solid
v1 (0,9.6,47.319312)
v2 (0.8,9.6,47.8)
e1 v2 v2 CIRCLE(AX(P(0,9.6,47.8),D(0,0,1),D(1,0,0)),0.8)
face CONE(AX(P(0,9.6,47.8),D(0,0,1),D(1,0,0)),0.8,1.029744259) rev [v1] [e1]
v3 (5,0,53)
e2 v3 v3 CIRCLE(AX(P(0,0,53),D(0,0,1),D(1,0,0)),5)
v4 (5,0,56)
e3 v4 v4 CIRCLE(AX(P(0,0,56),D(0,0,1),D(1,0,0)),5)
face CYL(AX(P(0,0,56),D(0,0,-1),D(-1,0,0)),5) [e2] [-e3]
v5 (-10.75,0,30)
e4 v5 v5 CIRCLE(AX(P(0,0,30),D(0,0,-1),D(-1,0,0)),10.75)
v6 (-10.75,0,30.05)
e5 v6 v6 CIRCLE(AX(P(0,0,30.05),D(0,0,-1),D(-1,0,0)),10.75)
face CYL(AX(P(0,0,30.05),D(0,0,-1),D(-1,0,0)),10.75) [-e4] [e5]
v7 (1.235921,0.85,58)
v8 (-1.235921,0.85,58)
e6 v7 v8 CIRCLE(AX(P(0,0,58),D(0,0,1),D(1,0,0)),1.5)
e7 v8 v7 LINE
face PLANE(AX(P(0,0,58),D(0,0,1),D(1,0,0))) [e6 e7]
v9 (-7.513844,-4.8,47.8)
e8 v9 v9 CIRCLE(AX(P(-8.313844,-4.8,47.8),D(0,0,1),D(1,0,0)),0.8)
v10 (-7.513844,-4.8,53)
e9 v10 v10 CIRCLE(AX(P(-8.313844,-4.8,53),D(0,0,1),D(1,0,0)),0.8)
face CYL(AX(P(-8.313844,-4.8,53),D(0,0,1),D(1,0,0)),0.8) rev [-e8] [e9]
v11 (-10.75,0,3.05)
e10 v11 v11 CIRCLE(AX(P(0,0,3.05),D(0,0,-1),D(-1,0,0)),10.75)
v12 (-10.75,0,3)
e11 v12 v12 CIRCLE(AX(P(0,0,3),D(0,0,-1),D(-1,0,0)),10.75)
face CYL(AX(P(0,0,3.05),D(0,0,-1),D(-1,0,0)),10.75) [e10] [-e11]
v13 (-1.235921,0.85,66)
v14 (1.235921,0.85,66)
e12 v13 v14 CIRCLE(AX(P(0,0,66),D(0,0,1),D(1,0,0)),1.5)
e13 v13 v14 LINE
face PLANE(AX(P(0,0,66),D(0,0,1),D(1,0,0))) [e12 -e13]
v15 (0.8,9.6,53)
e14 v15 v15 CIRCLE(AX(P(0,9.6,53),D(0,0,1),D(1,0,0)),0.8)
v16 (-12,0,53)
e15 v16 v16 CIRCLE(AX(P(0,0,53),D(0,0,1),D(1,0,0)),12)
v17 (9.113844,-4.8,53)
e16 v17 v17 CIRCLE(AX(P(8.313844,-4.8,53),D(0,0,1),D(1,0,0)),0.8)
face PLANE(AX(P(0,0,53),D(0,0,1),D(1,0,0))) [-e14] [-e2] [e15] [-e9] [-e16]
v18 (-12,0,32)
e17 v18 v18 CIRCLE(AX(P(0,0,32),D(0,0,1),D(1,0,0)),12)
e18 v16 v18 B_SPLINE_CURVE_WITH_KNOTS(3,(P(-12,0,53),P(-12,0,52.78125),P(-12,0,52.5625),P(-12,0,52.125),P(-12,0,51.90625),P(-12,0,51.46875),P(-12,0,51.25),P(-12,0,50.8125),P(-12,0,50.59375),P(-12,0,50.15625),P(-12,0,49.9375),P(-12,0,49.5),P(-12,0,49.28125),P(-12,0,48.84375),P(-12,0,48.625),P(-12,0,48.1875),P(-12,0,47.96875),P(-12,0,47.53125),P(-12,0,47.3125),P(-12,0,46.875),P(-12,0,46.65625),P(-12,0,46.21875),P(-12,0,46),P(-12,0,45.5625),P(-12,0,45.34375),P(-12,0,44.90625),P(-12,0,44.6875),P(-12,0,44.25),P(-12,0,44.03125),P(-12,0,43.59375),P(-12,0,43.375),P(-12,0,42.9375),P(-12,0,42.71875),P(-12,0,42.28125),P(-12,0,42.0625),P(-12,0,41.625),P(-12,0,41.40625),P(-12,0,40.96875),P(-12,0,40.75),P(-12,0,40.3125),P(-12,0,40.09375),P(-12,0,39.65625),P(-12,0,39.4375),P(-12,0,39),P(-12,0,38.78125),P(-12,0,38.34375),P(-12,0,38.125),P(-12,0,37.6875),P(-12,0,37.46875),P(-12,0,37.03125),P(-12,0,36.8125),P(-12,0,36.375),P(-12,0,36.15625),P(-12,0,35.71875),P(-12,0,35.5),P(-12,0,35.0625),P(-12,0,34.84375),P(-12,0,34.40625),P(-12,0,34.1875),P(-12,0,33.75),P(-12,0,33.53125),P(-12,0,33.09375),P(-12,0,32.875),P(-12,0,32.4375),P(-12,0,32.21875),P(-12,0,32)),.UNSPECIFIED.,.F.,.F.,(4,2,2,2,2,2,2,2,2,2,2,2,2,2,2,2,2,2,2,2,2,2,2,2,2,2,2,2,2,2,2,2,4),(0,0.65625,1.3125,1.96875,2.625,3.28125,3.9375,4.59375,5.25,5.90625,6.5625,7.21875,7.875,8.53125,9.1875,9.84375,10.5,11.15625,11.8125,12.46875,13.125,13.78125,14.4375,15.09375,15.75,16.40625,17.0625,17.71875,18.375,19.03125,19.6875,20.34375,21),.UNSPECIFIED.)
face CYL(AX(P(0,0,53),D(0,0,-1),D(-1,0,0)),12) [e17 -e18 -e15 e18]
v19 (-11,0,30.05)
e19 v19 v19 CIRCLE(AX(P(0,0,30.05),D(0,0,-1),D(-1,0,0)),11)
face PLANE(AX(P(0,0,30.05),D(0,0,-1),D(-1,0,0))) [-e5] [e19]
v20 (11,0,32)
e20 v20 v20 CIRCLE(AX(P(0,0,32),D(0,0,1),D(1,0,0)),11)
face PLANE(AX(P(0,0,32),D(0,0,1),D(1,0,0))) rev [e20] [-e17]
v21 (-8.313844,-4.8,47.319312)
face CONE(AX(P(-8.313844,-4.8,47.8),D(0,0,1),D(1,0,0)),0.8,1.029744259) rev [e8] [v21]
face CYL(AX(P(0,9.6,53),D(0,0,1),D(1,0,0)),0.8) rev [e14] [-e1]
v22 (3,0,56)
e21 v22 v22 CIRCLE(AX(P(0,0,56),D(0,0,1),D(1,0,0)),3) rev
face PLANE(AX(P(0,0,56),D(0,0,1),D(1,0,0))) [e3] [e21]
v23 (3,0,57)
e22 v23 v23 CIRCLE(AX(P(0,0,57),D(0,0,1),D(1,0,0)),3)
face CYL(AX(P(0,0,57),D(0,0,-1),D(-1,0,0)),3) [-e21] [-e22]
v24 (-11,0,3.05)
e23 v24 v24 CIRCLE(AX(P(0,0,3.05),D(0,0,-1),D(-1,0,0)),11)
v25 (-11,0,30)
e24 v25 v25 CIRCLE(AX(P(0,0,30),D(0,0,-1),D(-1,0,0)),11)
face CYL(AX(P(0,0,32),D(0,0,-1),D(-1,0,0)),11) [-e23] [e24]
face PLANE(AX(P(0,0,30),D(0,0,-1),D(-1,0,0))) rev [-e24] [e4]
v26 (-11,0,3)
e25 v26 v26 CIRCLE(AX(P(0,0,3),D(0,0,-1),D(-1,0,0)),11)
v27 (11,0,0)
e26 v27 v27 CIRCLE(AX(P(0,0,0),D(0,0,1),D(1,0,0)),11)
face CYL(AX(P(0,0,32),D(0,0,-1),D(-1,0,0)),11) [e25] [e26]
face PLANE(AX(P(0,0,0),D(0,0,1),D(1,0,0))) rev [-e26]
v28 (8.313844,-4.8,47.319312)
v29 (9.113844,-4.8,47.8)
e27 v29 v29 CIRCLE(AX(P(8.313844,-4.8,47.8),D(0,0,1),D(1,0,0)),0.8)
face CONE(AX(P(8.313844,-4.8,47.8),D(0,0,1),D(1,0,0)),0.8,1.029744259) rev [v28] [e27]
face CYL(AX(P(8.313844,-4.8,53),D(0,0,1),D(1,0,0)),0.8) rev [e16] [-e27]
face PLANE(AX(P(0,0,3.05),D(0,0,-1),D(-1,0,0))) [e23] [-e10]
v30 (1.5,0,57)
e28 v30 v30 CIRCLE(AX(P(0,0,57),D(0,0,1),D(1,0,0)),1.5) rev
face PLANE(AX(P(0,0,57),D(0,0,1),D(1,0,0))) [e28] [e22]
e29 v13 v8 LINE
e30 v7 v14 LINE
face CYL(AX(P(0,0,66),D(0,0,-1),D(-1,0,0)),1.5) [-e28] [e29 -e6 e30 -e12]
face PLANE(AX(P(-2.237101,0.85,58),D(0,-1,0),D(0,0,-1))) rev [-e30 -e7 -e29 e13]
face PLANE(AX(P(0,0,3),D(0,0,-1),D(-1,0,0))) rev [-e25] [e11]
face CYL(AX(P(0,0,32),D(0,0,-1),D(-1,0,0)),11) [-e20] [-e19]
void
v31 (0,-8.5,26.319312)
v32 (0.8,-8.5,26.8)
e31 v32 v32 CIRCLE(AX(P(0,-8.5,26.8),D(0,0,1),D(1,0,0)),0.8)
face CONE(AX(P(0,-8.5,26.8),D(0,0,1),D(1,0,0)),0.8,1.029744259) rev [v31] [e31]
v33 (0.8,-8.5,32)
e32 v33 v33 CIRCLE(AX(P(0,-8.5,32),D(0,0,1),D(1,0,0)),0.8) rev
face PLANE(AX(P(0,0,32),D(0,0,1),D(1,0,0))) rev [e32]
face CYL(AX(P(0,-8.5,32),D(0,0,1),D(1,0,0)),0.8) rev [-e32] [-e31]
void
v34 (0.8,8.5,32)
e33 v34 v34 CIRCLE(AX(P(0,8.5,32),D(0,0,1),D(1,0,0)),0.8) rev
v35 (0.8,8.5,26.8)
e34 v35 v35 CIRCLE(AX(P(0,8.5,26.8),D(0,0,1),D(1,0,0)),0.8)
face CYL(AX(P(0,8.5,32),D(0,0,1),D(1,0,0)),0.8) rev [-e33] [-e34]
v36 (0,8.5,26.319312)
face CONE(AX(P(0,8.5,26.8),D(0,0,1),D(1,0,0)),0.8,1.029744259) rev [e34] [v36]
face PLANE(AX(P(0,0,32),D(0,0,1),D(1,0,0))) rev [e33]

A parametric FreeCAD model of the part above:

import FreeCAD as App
import Part
import Sketcher

V = App.Vector
Q = App.Units.Quantity

doc = App.newDocument("Part")
body = doc.addObject("PartDesign::Body", "Body")

# Sketch on XY plane
sketch1 = body.newObject("Sketcher::SketchObject", "Sketch")
sketch1.AttachmentSupport = (doc.getObject("XY_Plane"), [""])
sketch1.MapMode = "FlatFace"
sketch1.addGeometry(Part.Circle(V(0, 0, 0), V(0, 0, 1), 11), False)
sketch1.addConstraint([
    Sketcher.Constraint("Coincident", 0, 3, -1, 1),
    Sketcher.Constraint("Diameter", 0, Q("22 mm")),
])
pad1 = body.newObject("PartDesign::Pad", "Pad")
pad1.Profile = sketch1
pad1.Length = 32

# Sketch on XY plane
sketch2 = body.newObject("Sketcher::SketchObject", "Sketch001")
sketch2.AttachmentSupport = (doc.getObject("XY_Plane"), [""])
sketch2.MapMode = "FlatFace"
sketch2.AttachmentOffset = App.Placement(V(0, 0, 32), App.Rotation())
sketch2.addGeometry([
    Part.Circle(V(0, 8.5, 0), V(0, 0, 1), 0.8),
    Part.Circle(V(0, -8.5, 0), V(0, 0, 1), 0.8),
], False)
sketch2.addConstraint([
    Sketcher.Constraint("Equal", 0, 1),
    Sketcher.Constraint("Symmetric", 0, 3, 1, 3, -1, 1),
    Sketcher.Constraint("PointOnObject", 0, 3, -2),
    Sketcher.Constraint("Diameter", 0, Q("1.6 mm")),
    Sketcher.Constraint("DistanceY", 1, 3, 0, 3, Q("17 mm")),
])
doc.recompute()
hole = body.newObject("PartDesign::Hole", "Hole")
hole.Profile = sketch2
hole.ThreadType = "None"
hole.Diameter = 1.6
hole.DepthType = "Dimension"
hole.Depth = 5.2
hole.DrillPoint = "Angled"
hole.DrillPointAngle = 118

# Sketch on XY plane
sketch3 = body.newObject("Sketcher::SketchObject", "Sketch002")
sketch3.AttachmentSupport = (doc.getObject("XY_Plane"), [""])
sketch3.MapMode = "FlatFace"
sketch3.AttachmentOffset = App.Placement(V(0, 0, 3), App.Rotation())
sketch3.addGeometry([
    Part.Circle(V(0, 0, 0), V(0, 0, 1), 11.838449),
    Part.Circle(V(0, 0, 0), V(0, 0, 1), 10.75),
], False)
sketch3.addConstraint([
    Sketcher.Constraint("Coincident", 0, 3, -1, 1),
    Sketcher.Constraint("Coincident", 1, 3, -1, 1),
    Sketcher.Constraint("Diameter", 1, Q("21.5 mm")),
    Sketcher.Constraint("Diameter", 0, Q("23.676897 mm")),
])
pocket1 = body.newObject("PartDesign::Pocket", "Pocket")
pocket1.Profile = sketch3
pocket1.Length = 0.05
pocket1.Reversed = True

# Sketch on XY plane
sketch4 = body.newObject("Sketcher::SketchObject", "Sketch003")
sketch4.AttachmentSupport = (doc.getObject("XY_Plane"), [""])
sketch4.MapMode = "FlatFace"
sketch4.AttachmentOffset = App.Placement(V(0, 0, 30), App.Rotation())
sketch4.addGeometry([
    Part.Circle(V(0, 0, 0), V(0, 0, 1), 11.838449),
    Part.Circle(V(0, 0, 0), V(0, 0, 1), 10.75),
], False)
sketch4.addConstraint([
    Sketcher.Constraint("Coincident", 0, 3, -1, 1),
    Sketcher.Constraint("Coincident", 1, 3, -1, 1),
    Sketcher.Constraint("Diameter", 1, Q("21.5 mm")),
    Sketcher.Constraint("Diameter", 0, Q("23.676897 mm")),
])
pocket2 = body.newObject("PartDesign::Pocket", "Pocket001")
pocket2.Profile = sketch4
pocket2.Length = 0.05
pocket2.Reversed = True

# Sketch on XY plane
sketch5 = body.newObject("Sketcher::SketchObject", "Sketch004")
sketch5.AttachmentSupport = (doc.getObject("XY_Plane"), [""])
sketch5.MapMode = "FlatFace"
sketch5.AttachmentOffset = App.Placement(V(0, 0, 32), App.Rotation())
sketch5.addGeometry(Part.Circle(V(0, 0, 0), V(0, 0, 1), 12), False)
sketch5.addConstraint([
    Sketcher.Constraint("Coincident", 0, 3, -1, 1),
    Sketcher.Constraint("Diameter", 0, Q("24 mm")),
])
pad2 = body.newObject("PartDesign::Pad", "Pad001")
pad2.Profile = sketch5
pad2.Length = 21

# Sketch on XY plane
sketch6 = body.newObject("Sketcher::SketchObject", "Sketch005")
sketch6.AttachmentSupport = (doc.getObject("XY_Plane"), [""])
sketch6.MapMode = "FlatFace"
sketch6.AttachmentOffset = App.Placement(V(0, 0, 53), App.Rotation())
sketch6.addGeometry(Part.Circle(V(0, 0, 0), V(0, 0, 1), 5), False)
sketch6.addConstraint([
    Sketcher.Constraint("Coincident", 0, 3, -1, 1),
    Sketcher.Constraint("Diameter", 0, Q("10 mm")),
])
pad3 = body.newObject("PartDesign::Pad", "Pad002")
pad3.Profile = sketch6
pad3.Length = 3

# Sketch on XY plane
sketch7 = body.newObject("Sketcher::SketchObject", "Sketch006")
sketch7.AttachmentSupport = (doc.getObject("XY_Plane"), [""])
sketch7.MapMode = "FlatFace"
sketch7.AttachmentOffset = App.Placement(V(0, 0, 53), App.Rotation())
sketch7.addGeometry(Part.Circle(V(0, 0, 0), V(0, 0, 1), 3), False)
sketch7.addConstraint([
    Sketcher.Constraint("Coincident", 0, 3, -1, 1),
    Sketcher.Constraint("Diameter", 0, Q("6 mm")),
])
pad4 = body.newObject("PartDesign::Pad", "Pad003")
pad4.Profile = sketch7
pad4.Length = 4

# Sketch on XY plane
sketch8 = body.newObject("Sketcher::SketchObject", "Sketch007")
sketch8.AttachmentSupport = (doc.getObject("XY_Plane"), [""])
sketch8.MapMode = "FlatFace"
sketch8.AttachmentOffset = App.Placement(V(0, 0, 53), App.Rotation())
sketch8.addGeometry(Part.Circle(V(0, 0, 0), V(0, 0, 1), 1.5), False)
sketch8.addConstraint([
    Sketcher.Constraint("Coincident", 0, 3, -1, 1),
    Sketcher.Constraint("Diameter", 0, Q("3 mm")),
])
pad5 = body.newObject("PartDesign::Pad", "Pad004")
pad5.Profile = sketch8
pad5.Length = 13

# Sketch on XY plane
sketch9 = body.newObject("Sketcher::SketchObject", "Sketch008")
sketch9.AttachmentSupport = (doc.getObject("XY_Plane"), [""])
sketch9.MapMode = "FlatFace"
sketch9.AttachmentOffset = App.Placement(V(0, 0, 66), App.Rotation())
sketch9.addGeometry([
    Part.LineSegment(V(-2.237102, 2.421013, 0), V(-2.237102, 0.85, 0)),
    Part.LineSegment(V(-2.237102, 0.85, 0), V(2.905743, 0.85, 0)),
    Part.LineSegment(V(2.905743, 0.85, 0), V(2.905743, 2.421013, 0)),
    Part.LineSegment(V(2.905743, 2.421013, 0), V(-2.237102, 2.421013, 0)),
], False)
sketch9.addConstraint([
    Sketcher.Constraint("Coincident", 0, 2, 1, 1),
    Sketcher.Constraint("Coincident", 1, 2, 2, 1),
    Sketcher.Constraint("Coincident", 2, 2, 3, 1),
    Sketcher.Constraint("Coincident", 3, 2, 0, 1),
    Sketcher.Constraint("Vertical", 0),
    Sketcher.Constraint("Horizontal", 1),
    Sketcher.Constraint("Vertical", 2),
    Sketcher.Constraint("Horizontal", 3),
    Sketcher.Constraint("DistanceY", -1, 1, 0, 2, Q("0.85 mm")),
    Sketcher.Constraint("DistanceX", 0, 2, -1, 1, Q("2.237102 mm")),
    Sketcher.Constraint("DistanceX", 1, 1, 1, 2, Q("5.142844 mm")),
    Sketcher.Constraint("DistanceY", 0, 2, 0, 1, Q("1.571013 mm")),
])
pocket3 = body.newObject("PartDesign::Pocket", "Pocket002")
pocket3.Profile = sketch9
pocket3.Length = 8

# Sketch on XY plane
sketch10 = body.newObject("Sketcher::SketchObject", "Sketch009")
sketch10.AttachmentSupport = (doc.getObject("XY_Plane"), [""])
sketch10.MapMode = "FlatFace"
sketch10.AttachmentOffset = App.Placement(V(0, 0, 53), App.Rotation())
sketch10.addGeometry([
    Part.Circle(V(0, 9.6, 0), V(0, 0, 1), 0.8),
    Part.Circle(V(8.313844, -4.8, 0), V(0, 0, 1), 0.8),
    Part.Circle(V(-8.313844, -4.8, 0), V(0, 0, 1), 0.8),
], False)
sketch10.addConstraint([
    Sketcher.Constraint("Equal", 0, 1),
    Sketcher.Constraint("Equal", 1, 2),
    Sketcher.Constraint("Symmetric", 1, 3, 2, 3, -2),
    Sketcher.Constraint("PointOnObject", 0, 3, -2),
    Sketcher.Constraint("Diameter", 0, Q("1.6 mm")),
    Sketcher.Constraint("DistanceY", -1, 1, 0, 3, Q("9.6 mm")),
    Sketcher.Constraint("DistanceY", 1, 3, -1, 1, Q("4.8 mm")),
    Sketcher.Constraint("DistanceX", -1, 1, 1, 3, Q("8.313844 mm")),
])
doc.recompute()
hole2 = body.newObject("PartDesign::Hole", "Hole001")
hole2.Profile = sketch10
hole2.ThreadType = "None"
hole2.Diameter = 1.6
hole2.DepthType = "Dimension"
hole2.Depth = 5.2
hole2.DrillPoint = "Angled"
hole2.DrillPointAngle = 118

doc.recompute()
